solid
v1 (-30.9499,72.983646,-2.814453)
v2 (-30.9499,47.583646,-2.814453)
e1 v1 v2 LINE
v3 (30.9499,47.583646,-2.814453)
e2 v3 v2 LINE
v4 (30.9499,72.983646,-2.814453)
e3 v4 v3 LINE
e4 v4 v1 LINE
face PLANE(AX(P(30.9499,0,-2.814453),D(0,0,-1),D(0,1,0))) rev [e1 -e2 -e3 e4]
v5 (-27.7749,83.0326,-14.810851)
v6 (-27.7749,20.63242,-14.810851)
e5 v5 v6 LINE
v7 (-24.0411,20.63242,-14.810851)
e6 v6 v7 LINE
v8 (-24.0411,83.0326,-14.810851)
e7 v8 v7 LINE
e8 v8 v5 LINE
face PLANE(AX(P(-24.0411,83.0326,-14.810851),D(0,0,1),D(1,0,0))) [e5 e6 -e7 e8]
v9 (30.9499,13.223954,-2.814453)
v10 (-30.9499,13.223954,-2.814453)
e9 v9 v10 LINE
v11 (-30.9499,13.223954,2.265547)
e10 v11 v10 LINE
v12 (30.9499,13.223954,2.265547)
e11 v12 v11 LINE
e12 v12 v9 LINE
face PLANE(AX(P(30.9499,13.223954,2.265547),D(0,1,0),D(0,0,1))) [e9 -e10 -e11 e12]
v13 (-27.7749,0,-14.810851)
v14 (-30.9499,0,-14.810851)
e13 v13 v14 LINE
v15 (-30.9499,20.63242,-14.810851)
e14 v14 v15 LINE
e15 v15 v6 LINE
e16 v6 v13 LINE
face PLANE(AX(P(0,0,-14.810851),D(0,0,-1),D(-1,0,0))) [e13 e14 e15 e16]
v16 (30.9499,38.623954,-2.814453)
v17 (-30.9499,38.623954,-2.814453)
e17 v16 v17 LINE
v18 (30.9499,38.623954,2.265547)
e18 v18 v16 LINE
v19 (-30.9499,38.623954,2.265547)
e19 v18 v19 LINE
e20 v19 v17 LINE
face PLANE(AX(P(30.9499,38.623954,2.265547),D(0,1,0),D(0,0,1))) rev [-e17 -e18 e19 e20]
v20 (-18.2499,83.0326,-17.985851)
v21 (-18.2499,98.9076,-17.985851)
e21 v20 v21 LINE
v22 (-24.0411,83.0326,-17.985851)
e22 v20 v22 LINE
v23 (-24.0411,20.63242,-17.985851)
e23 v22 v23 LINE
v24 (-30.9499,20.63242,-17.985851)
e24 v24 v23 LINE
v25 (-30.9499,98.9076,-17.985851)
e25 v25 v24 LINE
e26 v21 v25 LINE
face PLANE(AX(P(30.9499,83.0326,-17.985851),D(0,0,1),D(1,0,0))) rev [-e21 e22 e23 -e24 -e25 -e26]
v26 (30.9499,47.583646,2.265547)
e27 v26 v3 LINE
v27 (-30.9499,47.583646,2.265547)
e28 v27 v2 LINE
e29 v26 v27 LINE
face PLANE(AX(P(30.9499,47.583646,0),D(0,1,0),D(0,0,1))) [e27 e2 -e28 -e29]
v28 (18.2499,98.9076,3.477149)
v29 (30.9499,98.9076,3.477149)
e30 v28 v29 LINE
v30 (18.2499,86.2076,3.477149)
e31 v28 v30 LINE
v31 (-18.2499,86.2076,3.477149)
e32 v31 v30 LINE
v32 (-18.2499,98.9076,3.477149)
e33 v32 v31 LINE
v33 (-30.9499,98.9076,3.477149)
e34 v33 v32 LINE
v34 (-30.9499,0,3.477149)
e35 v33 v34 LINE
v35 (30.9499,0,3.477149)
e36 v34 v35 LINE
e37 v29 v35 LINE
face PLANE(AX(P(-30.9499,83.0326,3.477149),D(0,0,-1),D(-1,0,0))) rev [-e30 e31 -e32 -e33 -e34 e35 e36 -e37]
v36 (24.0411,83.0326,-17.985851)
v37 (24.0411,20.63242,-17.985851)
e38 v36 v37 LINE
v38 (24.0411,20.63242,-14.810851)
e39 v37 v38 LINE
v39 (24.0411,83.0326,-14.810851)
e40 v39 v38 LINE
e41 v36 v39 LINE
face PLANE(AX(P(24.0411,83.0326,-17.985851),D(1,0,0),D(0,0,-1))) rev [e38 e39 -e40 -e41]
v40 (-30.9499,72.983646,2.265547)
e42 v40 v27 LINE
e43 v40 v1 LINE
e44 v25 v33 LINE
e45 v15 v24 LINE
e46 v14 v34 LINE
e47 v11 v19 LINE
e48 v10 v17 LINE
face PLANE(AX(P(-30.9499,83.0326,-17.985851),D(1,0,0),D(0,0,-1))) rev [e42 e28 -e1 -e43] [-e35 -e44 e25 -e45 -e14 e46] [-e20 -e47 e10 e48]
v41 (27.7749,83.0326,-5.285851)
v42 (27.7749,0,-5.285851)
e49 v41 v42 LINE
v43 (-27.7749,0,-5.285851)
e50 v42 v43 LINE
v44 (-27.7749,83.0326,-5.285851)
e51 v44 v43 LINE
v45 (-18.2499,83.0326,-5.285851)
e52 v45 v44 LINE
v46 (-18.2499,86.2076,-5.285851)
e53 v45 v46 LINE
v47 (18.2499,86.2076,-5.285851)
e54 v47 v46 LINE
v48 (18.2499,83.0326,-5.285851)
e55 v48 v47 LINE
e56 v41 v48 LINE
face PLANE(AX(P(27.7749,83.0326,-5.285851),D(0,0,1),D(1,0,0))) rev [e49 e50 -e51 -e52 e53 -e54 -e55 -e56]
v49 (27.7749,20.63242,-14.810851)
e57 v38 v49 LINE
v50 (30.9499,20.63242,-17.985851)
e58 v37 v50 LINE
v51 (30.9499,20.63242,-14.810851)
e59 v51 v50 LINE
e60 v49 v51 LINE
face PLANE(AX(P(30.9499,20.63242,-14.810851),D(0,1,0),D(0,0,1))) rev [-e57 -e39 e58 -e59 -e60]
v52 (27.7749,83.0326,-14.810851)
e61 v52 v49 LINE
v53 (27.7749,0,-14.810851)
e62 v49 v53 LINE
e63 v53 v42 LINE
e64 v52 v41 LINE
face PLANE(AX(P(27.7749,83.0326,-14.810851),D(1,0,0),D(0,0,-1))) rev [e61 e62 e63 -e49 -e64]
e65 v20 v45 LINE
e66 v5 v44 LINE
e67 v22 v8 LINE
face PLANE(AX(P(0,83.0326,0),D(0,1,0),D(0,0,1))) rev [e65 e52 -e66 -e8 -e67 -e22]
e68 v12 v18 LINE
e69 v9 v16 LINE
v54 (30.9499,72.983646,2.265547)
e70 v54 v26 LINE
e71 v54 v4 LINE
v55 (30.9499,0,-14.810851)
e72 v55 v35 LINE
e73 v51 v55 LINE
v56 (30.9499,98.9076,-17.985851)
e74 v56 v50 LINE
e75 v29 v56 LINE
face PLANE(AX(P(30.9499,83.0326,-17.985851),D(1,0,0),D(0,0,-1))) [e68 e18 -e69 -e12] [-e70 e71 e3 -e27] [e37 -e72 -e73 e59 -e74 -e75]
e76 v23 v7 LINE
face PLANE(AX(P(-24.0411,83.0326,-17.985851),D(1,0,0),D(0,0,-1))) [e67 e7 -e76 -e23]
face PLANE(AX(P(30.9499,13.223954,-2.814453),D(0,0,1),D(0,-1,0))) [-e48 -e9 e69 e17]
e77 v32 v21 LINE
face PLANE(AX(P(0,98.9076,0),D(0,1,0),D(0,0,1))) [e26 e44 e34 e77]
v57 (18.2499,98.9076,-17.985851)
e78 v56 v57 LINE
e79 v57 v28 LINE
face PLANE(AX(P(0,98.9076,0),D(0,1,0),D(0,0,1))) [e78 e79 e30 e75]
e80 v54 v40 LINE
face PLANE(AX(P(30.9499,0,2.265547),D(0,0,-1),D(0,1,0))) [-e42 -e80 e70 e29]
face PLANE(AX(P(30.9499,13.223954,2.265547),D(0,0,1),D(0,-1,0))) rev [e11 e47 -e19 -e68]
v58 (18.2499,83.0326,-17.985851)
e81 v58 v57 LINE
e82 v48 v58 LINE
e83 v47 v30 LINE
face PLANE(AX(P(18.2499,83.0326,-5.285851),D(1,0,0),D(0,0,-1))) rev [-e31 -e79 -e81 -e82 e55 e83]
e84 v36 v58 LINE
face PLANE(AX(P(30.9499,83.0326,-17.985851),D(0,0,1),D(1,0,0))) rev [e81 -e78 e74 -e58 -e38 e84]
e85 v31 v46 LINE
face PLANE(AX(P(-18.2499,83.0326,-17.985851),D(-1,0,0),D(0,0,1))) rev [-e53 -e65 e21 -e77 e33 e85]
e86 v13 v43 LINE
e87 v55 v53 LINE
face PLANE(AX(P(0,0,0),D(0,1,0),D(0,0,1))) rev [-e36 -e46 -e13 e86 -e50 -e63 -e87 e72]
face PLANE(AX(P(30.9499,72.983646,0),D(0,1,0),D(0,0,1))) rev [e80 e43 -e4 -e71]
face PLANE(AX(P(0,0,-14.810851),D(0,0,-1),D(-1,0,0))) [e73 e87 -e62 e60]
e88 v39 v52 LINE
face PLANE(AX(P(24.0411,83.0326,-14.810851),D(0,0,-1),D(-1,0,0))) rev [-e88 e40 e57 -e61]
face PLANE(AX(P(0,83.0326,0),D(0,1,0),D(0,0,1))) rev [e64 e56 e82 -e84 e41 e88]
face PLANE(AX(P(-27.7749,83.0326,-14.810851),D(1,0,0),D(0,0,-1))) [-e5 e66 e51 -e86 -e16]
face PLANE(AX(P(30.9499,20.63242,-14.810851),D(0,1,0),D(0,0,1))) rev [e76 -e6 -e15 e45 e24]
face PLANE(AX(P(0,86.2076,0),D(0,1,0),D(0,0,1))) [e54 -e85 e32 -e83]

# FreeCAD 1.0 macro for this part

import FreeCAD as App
import Part
import Sketcher

V = App.Vector
Q = App.Units.Quantity

doc = App.newDocument("Part")
body = doc.addObject("PartDesign::Body", "Body")

# Sketch on XZ plane
sketch1 = body.newObject("Sketcher::SketchObject", "Sketch")
sketch1.AttachmentSupport = (doc.getObject("XZ_Plane"), [""])
sketch1.MapMode = "FlatFace"
sketch1.addGeometry([
    Part.LineSegment(V(-30.9499, 3.477149, 0), V(30.9499, 3.477149, 0)),  # 0
    Part.LineSegment(V(30.9499, 3.477149, 0), V(30.9499, -17.985851, 0)),  # 1
    Part.LineSegment(V(30.9499, -17.985851, 0), V(24.0411, -17.985851, 0)),  # 2
    Part.LineSegment(V(24.0411, -17.985851, 0), V(24.0411, -14.810851, 0)),  # 3
    Part.LineSegment(V(24.0411, -14.810851, 0), V(27.7749, -14.810851, 0)),  # 4
    Part.LineSegment(V(27.7749, -14.810851, 0), V(27.7749, -5.285851, 0)),  # 5
    Part.LineSegment(V(27.7749, -5.285851, 0), V(-27.7749, -5.285851, 0)),  # 6
    Part.LineSegment(V(-27.7749, -5.285851, 0), V(-27.7749, -14.810851, 0)),  # 7
    Part.LineSegment(V(-27.7749, -14.810851, 0), V(-24.0411, -14.810851, 0)),  # 8
    Part.LineSegment(V(-24.0411, -14.810851, 0), V(-24.0411, -17.985851, 0)),  # 9
    Part.LineSegment(V(-24.0411, -17.985851, 0), V(-30.9499, -17.985851, 0)),  # 10
    Part.LineSegment(V(-30.9499, -17.985851, 0), V(-30.9499, 3.477149, 0)),  # 11
], False)
sketch1.addConstraint([
    Sketcher.Constraint("Coincident", 0, 2, 1, 1),
    Sketcher.Constraint("Coincident", 1, 2, 2, 1),
    Sketcher.Constraint("Coincident", 2, 2, 3, 1),
    Sketcher.Constraint("Coincident", 3, 2, 4, 1),
    Sketcher.Constraint("Coincident", 4, 2, 5, 1),
    Sketcher.Constraint("Coincident", 5, 2, 6, 1),
    Sketcher.Constraint("Coincident", 6, 2, 7, 1),
    Sketcher.Constraint("Coincident", 7, 2, 8, 1),
    Sketcher.Constraint("Coincident", 8, 2, 9, 1),
    Sketcher.Constraint("Coincident", 9, 2, 10, 1),
    Sketcher.Constraint("Coincident", 10, 2, 11, 1),
    Sketcher.Constraint("Coincident", 11, 2, 0, 1),
    Sketcher.Constraint("Horizontal", 0),
    Sketcher.Constraint("Vertical", 1),
    Sketcher.Constraint("Horizontal", 2),
    Sketcher.Constraint("Vertical", 3),
    Sketcher.Constraint("Horizontal", 4),
    Sketcher.Constraint("Vertical", 5),
    Sketcher.Constraint("Horizontal", 6),
    Sketcher.Constraint("Vertical", 7),
    Sketcher.Constraint("Horizontal", 8),
    Sketcher.Constraint("Vertical", 9),
    Sketcher.Constraint("Horizontal", 10),
    Sketcher.Constraint("Vertical", 11),
    Sketcher.Constraint("Symmetric", 4, 2, 7, 2, -2),
    Sketcher.Constraint("Symmetric", 2, 2, 9, 2, -2),
    Sketcher.Constraint("Equal", 2, 10),
    Sketcher.Constraint("DistanceY", 1, 2, 5, 2, Q("0.5 in")),
    Sketcher.Constraint("DistanceX", 0, 1, 0, 2, Q("2.437 in")),
    Sketcher.Constraint("DistanceX", 2, 2, 2, 1, Q("0.272 in")),
    Sketcher.Constraint("DistanceX", 4, 1, 4, 2, Q("0.147 in")),
    Sketcher.Constraint("DistanceY", 1, 2, 1, 1, Q("0.845 in")),
    Sketcher.Constraint("DistanceY", 3, 1, 3, 2, Q("0.125 in")),
    Sketcher.Constraint("DistanceY", -1, 1, 0, 2, Q("3.477149 mm")),
])
pad1 = body.newObject("PartDesign::Pad", "Pad")
pad1.Profile = sketch1
pad1.Length = Q("3.269 in")
pad1.Reversed = True

# Sketch on XZ plane
sketch2 = body.newObject("Sketcher::SketchObject", "Sketch001")
sketch2.AttachmentSupport = (doc.getObject("XZ_Plane"), [""])
sketch2.MapMode = "FlatFace"
sketch2.AttachmentOffset = App.Placement(V(0, 0, -3.269 * 25.4), App.Rotation())
sketch2.addGeometry([
    Part.LineSegment(V(-30.9499, -17.985851, 0), V(-30.9499, 3.477149, 0)),
    Part.LineSegment(V(-30.9499, 3.477149, 0), V(30.9499, 3.477149, 0)),
    Part.LineSegment(V(30.9499, 3.477149, 0), V(30.9499, -17.985851, 0)),
    Part.LineSegment(V(30.9499, -17.985851, 0), V(-30.9499, -17.985851, 0)),
], False)
sketch2.addConstraint([
    Sketcher.Constraint("Coincident", 0, 2, 1, 1),
    Sketcher.Constraint("Coincident", 1, 2, 2, 1),
    Sketcher.Constraint("Coincident", 2, 2, 3, 1),
    Sketcher.Constraint("Coincident", 3, 2, 0, 1),
    Sketcher.Constraint("Vertical", 0),
    Sketcher.Constraint("Horizontal", 1),
    Sketcher.Constraint("Vertical", 2),
    Sketcher.Constraint("Horizontal", 3),
    Sketcher.Constraint("DistanceX", 1, 1, 1, 2, Q("2.437 in")),
    Sketcher.Constraint("DistanceY", 0, 1, 0, 2, Q("0.845 in")),
    Sketcher.Constraint("DistanceX", 0, 2, -1, 1, Q("1.2185 in")),
    Sketcher.Constraint("DistanceY", -1, 1, 0, 2, Q("3.477149 mm")),
])
pad2 = body.newObject("PartDesign::Pad", "Pad001")
pad2.Profile = sketch2
pad2.Length = Q("0.125 in")
pad2.Reversed = True

# Sketch on XZ plane
sketch3 = body.newObject("Sketcher::SketchObject", "Sketch002")
sketch3.AttachmentSupport = (doc.getObject("XZ_Plane"), [""])
sketch3.MapMode = "FlatFace"
sketch3.AttachmentOffset = App.Placement(V(0, 0, -3.269 * 25.4), App.Rotation())
sketch3.addGeometry([
    Part.LineSegment(V(-8.2677, -5.285851, 0), V(-8.2677, -14.810851, 0)),
    Part.LineSegment(V(-8.2677, -14.810851, 0), V(8.2677, -14.810851, 0)),
    Part.LineSegment(V(8.2677, -14.810851, 0), V(8.2677, -5.285851, 0)),
    Part.LineSegment(V(8.2677, -5.285851, 0), V(-8.2677, -5.285851, 0)),
], False)
sketch3.addConstraint([
    Sketcher.Constraint("Coincident", 0, 2, 1, 1),
    Sketcher.Constraint("Coincident", 1, 2, 2, 1),
    Sketcher.Constraint("Coincident", 2, 2, 3, 1),
    Sketcher.Constraint("Coincident", 3, 2, 0, 1),
    Sketcher.Constraint("Vertical", 0),
    Sketcher.Constraint("Horizontal", 1),
    Sketcher.Constraint("Vertical", 2),
    Sketcher.Constraint("Horizontal", 3),
    Sketcher.Constraint("DistanceX", 1, 1, 1, 2, Q("0.651 in")),
    Sketcher.Constraint("DistanceY", 0, 2, 0, 1, Q("0.375 in")),
    Sketcher.Constraint("DistanceX", 0, 2, -1, 1, Q("0.3255 in")),
    Sketcher.Constraint("DistanceY", 0, 2, -1, 1, Q("14.810851 mm")),
])
pocket1 = body.newObject("PartDesign::Pocket", "Pocket")
pocket1.Profile = sketch3
pocket1.Type = "ThroughAll"

# Sketch on YZ plane
sketch4 = body.newObject("Sketcher::SketchObject", "Sketch003")
sketch4.AttachmentSupport = (doc.getObject("YZ_Plane"), [""])
sketch4.MapMode = "FlatFace"
sketch4.AttachmentOffset = App.Placement(V(0, 0, -1.2185 * 25.4), App.Rotation())
sketch4.addGeometry([
    Part.LineSegment(V(72.983646, -2.814453, 0), V(47.583646, -2.814453, 0)),  # 0
    Part.LineSegment(V(47.583646, -2.814453, 0), V(47.583646, 2.265547, 0)),  # 1
    Part.LineSegment(V(47.583646, 2.265547, 0), V(72.983646, 2.265547, 0)),  # 2
    Part.LineSegment(V(72.983646, 2.265547, 0), V(72.983646, -2.814453, 0)),  # 3
    Part.LineSegment(V(38.623954, -2.814453, 0), V(13.223954, -2.814453, 0)),  # 4
    Part.LineSegment(V(13.223954, -2.814453, 0), V(13.223954, 2.265547, 0)),  # 5
    Part.LineSegment(V(13.223954, 2.265547, 0), V(38.623954, 2.265547, 0)),  # 6
    Part.LineSegment(V(38.623954, 2.265547, 0), V(38.623954, -2.814453, 0)),  # 7
], False)
sketch4.addConstraint([
    Sketcher.Constraint("Coincident", 0, 2, 1, 1),
    Sketcher.Constraint("Coincident", 1, 2, 2, 1),
    Sketcher.Constraint("Coincident", 2, 2, 3, 1),
    Sketcher.Constraint("Coincident", 3, 2, 0, 1),
    Sketcher.Constraint("Coincident", 4, 2, 5, 1),
    Sketcher.Constraint("Coincident", 5, 2, 6, 1),
    Sketcher.Constraint("Coincident", 6, 2, 7, 1),
    Sketcher.Constraint("Coincident", 7, 2, 4, 1),
    Sketcher.Constraint("Horizontal", 0),
    Sketcher.Constraint("Vertical", 1),
    Sketcher.Constraint("Horizontal", 2),
    Sketcher.Constraint("Vertical", 3),
    Sketcher.Constraint("Horizontal", 4),
    Sketcher.Constraint("Vertical", 5),
    Sketcher.Constraint("Horizontal", 6),
    Sketcher.Constraint("Vertical", 7),
    Sketcher.Constraint("Horizontal", 3, 2, 4, 2),
    Sketcher.Constraint("Horizontal", 2, 2, 5, 2),
    Sketcher.Constraint("Equal", 2, 4),
    Sketcher.Constraint("DistanceX", 0, 2, 0, 1, Q("1 in")),
    Sketcher.Constraint("DistanceY", 1, 1, 1, 2, Q("0.2 in")),
    Sketcher.Constraint("DistanceX", 4, 2, 0, 2, Q("34.359692 mm")),
    Sketcher.Constraint("DistanceX", -1, 1, 0, 2, Q("47.583646 mm")),
    Sketcher.Constraint("DistanceY", 0, 2, -1, 1, Q("2.814453 mm")),
])
pocket2 = body.newObject("PartDesign::Pocket", "Pocket001")
pocket2.Profile = sketch4
pocket2.Type = "ThroughAll"
pocket2.Reversed = True

# Sketch on XY plane
sketch5 = body.newObject("Sketcher::SketchObject", "Sketch004")
sketch5.AttachmentSupport = (doc.getObject("XY_Plane"), [""])
sketch5.MapMode = "FlatFace"
sketch5.AttachmentOffset = App.Placement(V(0, 0, -17.985851), App.Rotation())
sketch5.addGeometry([
    Part.LineSegment(V(30.9499, 20.63242, 0), V(30.9499, 0, 0)),
    Part.LineSegment(V(30.9499, 0, 0), V(-30.9499, 0, 0)),
    Part.LineSegment(V(-30.9499, 0, 0), V(-30.9499, 20.63242, 0)),
    Part.LineSegment(V(-30.9499, 20.63242, 0), V(30.9499, 20.63242, 0)),
], False)
sketch5.addConstraint([
    Sketcher.Constraint("Coincident", 0, 2, 1, 1),
    Sketcher.Constraint("Coincident", 1, 2, 2, 1),
    Sketcher.Constraint("Coincident", 2, 2, 3, 1),
    Sketcher.Constraint("Coincident", 3, 2, 0, 1),
    Sketcher.Constraint("Vertical", 0),
    Sketcher.Constraint("Horizontal", 1),
    Sketcher.Constraint("Vertical", 2),
    Sketcher.Constraint("Horizontal", 3),
    Sketcher.Constraint("Symmetric", 0, 2, 1, 2, -1, 1),
    Sketcher.Constraint("DistanceX", 1, 2, 1, 1, Q("2.437 in")),
    Sketcher.Constraint("DistanceY", 0, 2, 0, 1, Q("0.8123 in")),
])
pocket3 = body.newObject("PartDesign::Pocket", "Pocket002")
pocket3.Profile = sketch5
pocket3.Length = Q("0.125 in")
pocket3.Reversed = True

# Sketch on XZ plane
sketch6 = body.newObject("Sketcher::SketchObject", "Sketch005")
sketch6.AttachmentSupport = (doc.getObject("XZ_Plane"), [""])
sketch6.MapMode = "FlatFace"
sketch6.AttachmentOffset = App.Placement(V(0, 0, -3.394 * 25.4), App.Rotation())
sketch6.addGeometry([
    Part.LineSegment(V(-18.2499, -17.985851, 0), V(-18.2499, -5.285851, 0)),
    Part.LineSegment(V(-18.2499, -5.285851, 0), V(18.2499, -5.285851, 0)),
    Part.LineSegment(V(18.2499, -5.285851, 0), V(18.2499, -17.985851, 0)),
    Part.LineSegment(V(18.2499, -17.985851, 0), V(-18.2499, -17.985851, 0)),
], False)
sketch6.addConstraint([
    Sketcher.Constraint("Coincident", 0, 2, 1, 1),
    Sketcher.Constraint("Coincident", 1, 2, 2, 1),
    Sketcher.Constraint("Coincident", 2, 2, 3, 1),
    Sketcher.Constraint("Coincident", 3, 2, 0, 1),
    Sketcher.Constraint("Vertical", 0),
    Sketcher.Constraint("Horizontal", 1),
    Sketcher.Constraint("Vertical", 2),
    Sketcher.Constraint("Horizontal", 3),
    Sketcher.Constraint("DistanceY", 0, 1, 0, 2, Q("0.5 in")),
    Sketcher.Constraint("DistanceX", 1, 1, 1, 2, Q("1.437 in")),
    Sketcher.Constraint("DistanceX", 0, 2, -1, 1, Q("0.7185 in")),
    Sketcher.Constraint("DistanceY", 0, 2, -1, 1, Q("5.285851 mm")),
])
pocket4 = body.newObject("PartDesign::Pocket", "Pocket003")
pocket4.Profile = sketch6
pocket4.Length = Q("0.125 in")
pocket4.Reversed = True

# Sketch on XZ plane
sketch7 = body.newObject("Sketcher::SketchObject", "Sketch006")
sketch7.AttachmentSupport = (doc.getObject("XZ_Plane"), [""])
sketch7.MapMode = "FlatFace"
sketch7.AttachmentOffset = App.Placement(V(0, 0, -3.394 * 25.4), App.Rotation())
sketch7.addGeometry([
    Part.LineSegment(V(-30.9499, -17.985851, 0), V(-30.9499, 3.477149, 0)),  # 0
    Part.LineSegment(V(-30.9499, 3.477149, 0), V(-18.2499, 3.477149, 0)),  # 1
    Part.LineSegment(V(-18.2499, 3.477149, 0), V(-18.2499, -17.985851, 0)),  # 2
    Part.LineSegment(V(-18.2499, -17.985851, 0), V(-30.9499, -17.985851, 0)),  # 3
    Part.LineSegment(V(18.2499, -17.985851, 0), V(18.2499, 3.477149, 0)),  # 4
    Part.LineSegment(V(18.2499, 3.477149, 0), V(30.9499, 3.477149, 0)),  # 5
    Part.LineSegment(V(30.9499, 3.477149, 0), V(30.9499, -17.985851, 0)),  # 6
    Part.LineSegment(V(30.9499, -17.985851, 0), V(18.2499, -17.985851, 0)),  # 7
], False)
sketch7.addConstraint([
    Sketcher.Constraint("Coincident", 0, 2, 1, 1),
    Sketcher.Constraint("Coincident", 1, 2, 2, 1),
    Sketcher.Constraint("Coincident", 2, 2, 3, 1),
    Sketcher.Constraint("Coincident", 3, 2, 0, 1),
    Sketcher.Constraint("Coincident", 4, 2, 5, 1),
    Sketcher.Constraint("Coincident", 5, 2, 6, 1),
    Sketcher.Constraint("Coincident", 6, 2, 7, 1),
    Sketcher.Constraint("Coincident", 7, 2, 4, 1),
    Sketcher.Constraint("Vertical", 0),
    Sketcher.Constraint("Horizontal", 1),
    Sketcher.Constraint("Vertical", 2),
    Sketcher.Constraint("Horizontal", 3),
    Sketcher.Constraint("Vertical", 4),
    Sketcher.Constraint("Horizontal", 5),
    Sketcher.Constraint("Vertical", 6),
    Sketcher.Constraint("Horizontal", 7),
    Sketcher.Constraint("Symmetric", 1, 2, 4, 2, -2),
    Sketcher.Constraint("Symmetric", 3, 2, 6, 2, -2),
    Sketcher.Constraint("DistanceX", 1, 1, 1, 2, Q("0.5 in")),
    Sketcher.Constraint("DistanceY", 0, 1, 0, 2, Q("0.845 in")),
    Sketcher.Constraint("DistanceX", 1, 2, 4, 2, Q("1.437 in")),
    Sketcher.Constraint("DistanceY", -1, 1, 0, 2, Q("3.477149 mm")),
])
pad3 = body.newObject("PartDesign::Pad", "Pad002")
pad3.Profile = sketch7
pad3.Length = Q("0.5 in")
pad3.Reversed = True

doc.recompute()
